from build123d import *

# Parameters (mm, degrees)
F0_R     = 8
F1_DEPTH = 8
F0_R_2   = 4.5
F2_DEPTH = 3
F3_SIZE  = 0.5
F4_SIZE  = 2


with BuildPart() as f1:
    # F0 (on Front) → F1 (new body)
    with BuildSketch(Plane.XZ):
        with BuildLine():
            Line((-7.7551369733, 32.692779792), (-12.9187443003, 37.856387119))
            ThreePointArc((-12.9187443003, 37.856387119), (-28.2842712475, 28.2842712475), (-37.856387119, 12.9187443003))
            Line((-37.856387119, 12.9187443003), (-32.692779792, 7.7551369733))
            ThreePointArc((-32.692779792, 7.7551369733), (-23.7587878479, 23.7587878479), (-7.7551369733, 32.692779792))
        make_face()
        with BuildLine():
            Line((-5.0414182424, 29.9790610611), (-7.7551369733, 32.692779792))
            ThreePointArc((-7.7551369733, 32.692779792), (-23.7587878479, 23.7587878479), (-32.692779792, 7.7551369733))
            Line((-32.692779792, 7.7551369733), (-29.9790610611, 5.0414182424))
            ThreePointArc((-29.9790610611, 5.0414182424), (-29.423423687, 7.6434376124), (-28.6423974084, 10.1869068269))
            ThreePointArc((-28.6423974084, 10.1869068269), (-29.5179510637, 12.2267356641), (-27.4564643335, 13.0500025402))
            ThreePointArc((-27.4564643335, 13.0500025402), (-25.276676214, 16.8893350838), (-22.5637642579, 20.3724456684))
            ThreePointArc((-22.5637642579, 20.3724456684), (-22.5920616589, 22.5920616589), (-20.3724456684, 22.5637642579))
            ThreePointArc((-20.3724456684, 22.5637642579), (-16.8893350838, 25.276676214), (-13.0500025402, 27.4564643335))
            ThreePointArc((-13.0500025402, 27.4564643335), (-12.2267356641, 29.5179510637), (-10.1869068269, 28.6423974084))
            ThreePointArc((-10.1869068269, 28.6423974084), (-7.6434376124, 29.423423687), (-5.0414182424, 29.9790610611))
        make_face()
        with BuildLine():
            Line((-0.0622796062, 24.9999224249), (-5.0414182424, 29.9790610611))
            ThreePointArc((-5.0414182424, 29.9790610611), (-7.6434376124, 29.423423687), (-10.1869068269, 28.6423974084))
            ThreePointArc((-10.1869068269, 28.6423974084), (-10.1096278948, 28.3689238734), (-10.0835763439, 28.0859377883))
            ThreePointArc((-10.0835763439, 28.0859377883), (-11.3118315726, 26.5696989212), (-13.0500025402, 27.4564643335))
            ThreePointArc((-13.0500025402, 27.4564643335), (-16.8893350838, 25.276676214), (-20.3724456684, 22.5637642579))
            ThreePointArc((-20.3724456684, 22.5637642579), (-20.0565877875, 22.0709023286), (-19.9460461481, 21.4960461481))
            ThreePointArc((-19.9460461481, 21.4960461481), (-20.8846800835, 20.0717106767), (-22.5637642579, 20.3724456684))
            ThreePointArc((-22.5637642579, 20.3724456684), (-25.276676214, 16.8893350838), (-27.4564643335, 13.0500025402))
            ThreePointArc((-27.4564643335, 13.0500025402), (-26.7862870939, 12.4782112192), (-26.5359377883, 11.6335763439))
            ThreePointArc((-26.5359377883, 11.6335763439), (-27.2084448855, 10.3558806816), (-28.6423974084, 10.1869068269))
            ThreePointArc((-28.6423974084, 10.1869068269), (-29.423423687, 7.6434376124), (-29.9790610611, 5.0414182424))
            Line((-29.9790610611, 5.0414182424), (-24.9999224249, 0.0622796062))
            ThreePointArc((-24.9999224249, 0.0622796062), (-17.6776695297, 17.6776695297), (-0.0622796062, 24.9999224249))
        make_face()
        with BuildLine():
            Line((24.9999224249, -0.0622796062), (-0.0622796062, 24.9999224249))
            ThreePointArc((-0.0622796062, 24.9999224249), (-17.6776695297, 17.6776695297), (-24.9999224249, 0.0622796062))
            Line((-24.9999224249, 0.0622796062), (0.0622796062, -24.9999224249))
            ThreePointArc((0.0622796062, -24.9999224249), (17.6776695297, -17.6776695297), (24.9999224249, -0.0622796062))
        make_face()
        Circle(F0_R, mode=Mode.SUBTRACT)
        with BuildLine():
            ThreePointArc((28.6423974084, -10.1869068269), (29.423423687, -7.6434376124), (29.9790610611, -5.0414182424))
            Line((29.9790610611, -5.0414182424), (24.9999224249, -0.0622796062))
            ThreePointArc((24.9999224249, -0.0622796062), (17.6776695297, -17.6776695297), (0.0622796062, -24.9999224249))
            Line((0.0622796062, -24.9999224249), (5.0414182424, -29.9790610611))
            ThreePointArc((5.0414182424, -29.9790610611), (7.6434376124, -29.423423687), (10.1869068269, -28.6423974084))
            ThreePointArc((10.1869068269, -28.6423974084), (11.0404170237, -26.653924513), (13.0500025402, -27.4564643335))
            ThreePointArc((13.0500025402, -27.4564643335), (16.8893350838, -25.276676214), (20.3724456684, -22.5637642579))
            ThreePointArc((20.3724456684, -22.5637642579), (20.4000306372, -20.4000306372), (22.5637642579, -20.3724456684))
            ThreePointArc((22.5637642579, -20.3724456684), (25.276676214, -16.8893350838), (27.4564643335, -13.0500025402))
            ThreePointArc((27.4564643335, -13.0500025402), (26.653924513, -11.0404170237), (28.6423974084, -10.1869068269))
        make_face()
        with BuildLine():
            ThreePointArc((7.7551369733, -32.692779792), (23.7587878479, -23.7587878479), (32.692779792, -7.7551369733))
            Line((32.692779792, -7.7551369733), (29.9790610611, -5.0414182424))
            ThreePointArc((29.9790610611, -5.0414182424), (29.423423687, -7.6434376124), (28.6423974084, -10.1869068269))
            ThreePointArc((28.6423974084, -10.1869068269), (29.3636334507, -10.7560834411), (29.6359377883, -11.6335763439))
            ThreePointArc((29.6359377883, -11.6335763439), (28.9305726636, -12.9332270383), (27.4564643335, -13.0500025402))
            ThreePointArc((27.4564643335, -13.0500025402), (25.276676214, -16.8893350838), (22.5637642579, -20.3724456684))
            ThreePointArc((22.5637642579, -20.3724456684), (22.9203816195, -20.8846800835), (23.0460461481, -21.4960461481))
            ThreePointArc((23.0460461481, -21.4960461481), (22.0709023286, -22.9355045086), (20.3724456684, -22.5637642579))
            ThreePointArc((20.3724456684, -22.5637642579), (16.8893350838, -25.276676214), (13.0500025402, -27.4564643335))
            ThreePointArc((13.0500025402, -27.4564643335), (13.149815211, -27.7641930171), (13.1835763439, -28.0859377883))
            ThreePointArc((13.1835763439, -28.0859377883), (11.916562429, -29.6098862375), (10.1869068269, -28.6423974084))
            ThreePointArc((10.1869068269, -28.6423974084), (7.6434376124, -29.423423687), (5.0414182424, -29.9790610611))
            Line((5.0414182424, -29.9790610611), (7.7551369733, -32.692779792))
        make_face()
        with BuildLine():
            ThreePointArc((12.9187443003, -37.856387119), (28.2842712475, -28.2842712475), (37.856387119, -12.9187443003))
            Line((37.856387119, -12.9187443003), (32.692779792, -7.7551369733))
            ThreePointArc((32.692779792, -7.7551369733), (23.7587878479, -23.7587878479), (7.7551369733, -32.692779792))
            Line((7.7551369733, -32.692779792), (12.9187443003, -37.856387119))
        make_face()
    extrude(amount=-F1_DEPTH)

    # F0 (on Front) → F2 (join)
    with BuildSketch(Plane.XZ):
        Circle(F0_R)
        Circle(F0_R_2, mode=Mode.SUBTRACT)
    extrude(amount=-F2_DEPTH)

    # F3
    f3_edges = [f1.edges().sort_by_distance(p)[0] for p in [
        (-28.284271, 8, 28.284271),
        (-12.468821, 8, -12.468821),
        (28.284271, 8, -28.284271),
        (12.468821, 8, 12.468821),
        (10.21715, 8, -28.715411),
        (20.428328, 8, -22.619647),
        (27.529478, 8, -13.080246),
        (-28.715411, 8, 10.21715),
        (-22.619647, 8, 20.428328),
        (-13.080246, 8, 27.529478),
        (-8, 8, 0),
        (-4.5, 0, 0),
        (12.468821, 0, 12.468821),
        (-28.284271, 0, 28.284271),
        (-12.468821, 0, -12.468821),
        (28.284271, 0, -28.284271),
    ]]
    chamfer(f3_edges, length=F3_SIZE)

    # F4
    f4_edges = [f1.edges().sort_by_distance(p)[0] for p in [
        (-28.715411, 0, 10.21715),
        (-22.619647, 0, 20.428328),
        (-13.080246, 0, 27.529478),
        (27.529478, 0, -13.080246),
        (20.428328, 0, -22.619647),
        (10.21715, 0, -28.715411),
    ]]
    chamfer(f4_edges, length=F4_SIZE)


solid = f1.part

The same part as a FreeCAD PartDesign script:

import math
import FreeCAD as App
import Part
import Sketcher

V = App.Vector
Q = App.Units.Quantity


def edges_at(feature, points):
    """Names of the edges that pass closest to the given points."""
    edges = feature.Shape.Edges
    near = lambda p: min(range(len(edges)), key=lambda i: edges[i].distToShape(Part.Vertex(*p))[0])
    return sorted({f"Edge{near(p) + 1}" for p in points})

doc = App.newDocument("Part")
params = doc.addObject("Spreadsheet::Sheet", "Params")
for row, (alias, value) in enumerate([
    ("sketch1_diameter", "16 mm"),
    ("sketch1_radius", "40 mm"),
    ("sketch1_radius2", "1.55 mm"),
    ("pad1_length", "8 mm"),
    ("sketch2_diameter", "16 mm"),
    ("sketch2_diameter2", "9 mm"),
    ("pad2_length", "3 mm"),
    ("chamfer_size", "0.5 mm"),
    ("chamfer2_size", "2 mm"),
], start=1):
    params.set(f"A{row}", alias)
    params.set(f"B{row}", "=" + value)
    params.setAlias(f"B{row}", alias)

body = doc.addObject("PartDesign::Body", "Body")

# Sketch on XZ plane
sketch1 = body.newObject("Sketcher::SketchObject", "Sketch")
sketch1.AttachmentSupport = (doc.getObject("XZ_Plane"), [""])
sketch1.MapMode = "FlatFace"
sketch1.addGeometry(Part.ArcOfCircle(Part.Circle(V(0, 0, 0), V(0, 0, 1), 40), math.radians(109), math.radians(161)), False)
sketch1.addGeometry(Part.LineSegment(V(-37.9, 12.9, 0), V(12.9, -37.9, 0)), False)
sketch1.addGeometry(Part.ArcOfCircle(Part.Circle(V(0, 0, 0), V(0, 0, 1), 40), math.radians(-71), math.radians(-19)), False)
sketch1.addGeometry(Part.LineSegment(V(37.9, -12.9, 0), V(-12.9, 37.9, 0)), False)
sketch1.addGeometry(Part.ArcOfCircle(Part.Circle(V(11.6, -28.1, 0), V(0, 0, 1), 1.6), math.radians(24), math.radians(201)), False)
sketch1.addGeometry(Part.ArcOfCircle(Part.Circle(V(11.6, -28.1, 0), V(0, 0, 1), 1.6), math.radians(0), math.radians(24)), False)
sketch1.addGeometry(Part.ArcOfCircle(Part.Circle(V(11.6, -28.1, 0), V(0, 0, 1), 1.6), math.radians(-159), math.radians(0)), False)
sketch1.addGeometry(Part.ArcOfCircle(Part.Circle(V(21.5, -21.5, 0), V(0, 0, 1), 1.6), math.radians(46), math.radians(224)), False)
sketch1.addGeometry(Part.ArcOfCircle(Part.Circle(V(21.5, -21.5, 0), V(0, 0, 1), 1.6), math.radians(0), math.radians(46)), False)
sketch1.addGeometry(Part.ArcOfCircle(Part.Circle(V(21.5, -21.5, 0), V(0, 0, 1), 1.6), math.radians(-136), math.radians(0)), False)
sketch1.addGeometry(Part.ArcOfCircle(Part.Circle(V(28.1, -11.6, 0), V(0, 0, 1), 1.6), math.radians(69), math.radians(246)), False)
sketch1.addGeometry(Part.ArcOfCircle(Part.Circle(V(28.1, -11.6, 0), V(0, 0, 1), 1.6), math.radians(0), math.radians(69)), False)
sketch1.addGeometry(Part.ArcOfCircle(Part.Circle(V(28.1, -11.6, 0), V(0, 0, 1), 1.6), math.radians(-114), math.radians(0)), False)
sketch1.addGeometry(Part.Circle(V(0, 0, 0), V(0, 0, 1), 8), False)
sketch1.addGeometry(Part.ArcOfCircle(Part.Circle(V(-28.1, 11.6, 0), V(0, 0, 1), 1.6), math.radians(66), math.radians(249)), False)
sketch1.addGeometry(Part.ArcOfCircle(Part.Circle(V(-28.1, 11.6, 0), V(0, 0, 1), 1.6), math.radians(0), math.radians(66)), False)
sketch1.addGeometry(Part.ArcOfCircle(Part.Circle(V(-28.1, 11.6, 0), V(0, 0, 1), 1.6), math.radians(-111), math.radians(0)), False)
sketch1.addGeometry(Part.ArcOfCircle(Part.Circle(V(-21.5, 21.5, 0), V(0, 0, 1), 1.6), math.radians(44), math.radians(226)), False)
sketch1.addGeometry(Part.ArcOfCircle(Part.Circle(V(-21.5, 21.5, 0), V(0, 0, 1), 1.5), math.radians(0), math.radians(44)), False)
sketch1.addGeometry(Part.ArcOfCircle(Part.Circle(V(-21.5, 21.5, 0), V(0, 0, 1), 1.6), math.radians(-134), math.radians(0)), False)
sketch1.addGeometry(Part.ArcOfCircle(Part.Circle(V(-11.6, 28.1, 0), V(0, 0, 1), 1.6), math.radians(21), math.radians(204)), False)
sketch1.addGeometry(Part.ArcOfCircle(Part.Circle(V(-11.6, 28.1, 0), V(0, 0, 1), 1.6), math.radians(0), math.radians(21)), False)
sketch1.addGeometry(Part.ArcOfCircle(Part.Circle(V(-11.6, 28.1, 0), V(0, 0, 1), 1.6), math.radians(-156), math.radians(0)), False)
sketch1.addConstraint(Sketcher.Constraint("Coincident", 0, 2, 1, 1))
sketch1.addConstraint(Sketcher.Constraint("Coincident", 1, 2, 2, 1))
sketch1.addConstraint(Sketcher.Constraint("Coincident", 2, 2, 3, 1))
sketch1.addConstraint(Sketcher.Constraint("Coincident", 3, 2, 0, 1))
sketch1.addConstraint(Sketcher.Constraint("Tangent", 4, 1, 5, 2))
sketch1.addConstraint(Sketcher.Constraint("Tangent", 5, 1, 6, 2))
sketch1.addConstraint(Sketcher.Constraint("Tangent", 6, 1, 4, 2))
sketch1.addConstraint(Sketcher.Constraint("Tangent", 7, 1, 8, 2))
sketch1.addConstraint(Sketcher.Constraint("Tangent", 8, 1, 9, 2))
sketch1.addConstraint(Sketcher.Constraint("Tangent", 9, 1, 7, 2))
sketch1.addConstraint(Sketcher.Constraint("Tangent", 10, 1, 11, 2))
sketch1.addConstraint(Sketcher.Constraint("Tangent", 11, 1, 12, 2))
sketch1.addConstraint(Sketcher.Constraint("Tangent", 12, 1, 10, 2))
sketch1.addConstraint(Sketcher.Constraint("Tangent", 14, 1, 15, 2))
sketch1.addConstraint(Sketcher.Constraint("Tangent", 15, 1, 16, 2))
sketch1.addConstraint(Sketcher.Constraint("Tangent", 16, 1, 14, 2))
sketch1.addConstraint(Sketcher.Constraint("Tangent", 17, 1, 18, 2))
sketch1.addConstraint(Sketcher.Constraint("Tangent", 18, 1, 19, 2))
sketch1.addConstraint(Sketcher.Constraint("Tangent", 19, 1, 17, 2))
sketch1.addConstraint(Sketcher.Constraint("Tangent", 20, 1, 21, 2))
sketch1.addConstraint(Sketcher.Constraint("Tangent", 21, 1, 22, 2))
sketch1.addConstraint(Sketcher.Constraint("Tangent", 22, 1, 20, 2))
sketch1.addConstraint(Sketcher.Constraint("Coincident", 0, 3, -1, 1))
sketch1.addConstraint(Sketcher.Constraint("Coincident", 2, 3, -1, 1))
sketch1.addConstraint(Sketcher.Constraint("Coincident", 13, 3, -1, 1))
sketch1.addConstraint(Sketcher.Constraint("Equal", 0, 2))
sketch1.addConstraint(Sketcher.Constraint("Equal", 6, 7))
sketch1.addConstraint(Sketcher.Constraint("Equal", 9, 10))
sketch1.addConstraint(Sketcher.Constraint("Equal", 12, 14))
sketch1.addConstraint(Sketcher.Constraint("Equal", 16, 17))
sketch1.addConstraint(Sketcher.Constraint("Equal", 19, 20))
sketch1.addConstraint(Sketcher.Constraint("Symmetric", 10, 3, 14, 3, -1, 1))
sketch1.addConstraint(Sketcher.Constraint("Symmetric", 7, 3, 17, 3, -1, 1))
sketch1.addConstraint(Sketcher.Constraint("Symmetric", 4, 3, 20, 3, -1, 1))
sketch1.addConstraint(Sketcher.Constraint("Parallel", 1, 3))
sketch1.addConstraint(Sketcher.Constraint("Horizontal", 6, 3, 5, 1))
sketch1.addConstraint(Sketcher.Constraint("Horizontal", 9, 3, 8, 1))
sketch1.addConstraint(Sketcher.Constraint("Horizontal", 12, 3, 11, 1))
sketch1.addConstraint(Sketcher.Constraint("Horizontal", 16, 3, 15, 1))
sketch1.addConstraint(Sketcher.Constraint("Horizontal", 19, 3, 18, 1))
sketch1.addConstraint(Sketcher.Constraint("Horizontal", 22, 3, 21, 1))
sketch1.addConstraint(Sketcher.Constraint("Equal", 1, 3))
sketch1.addConstraint(Sketcher.Constraint("Diameter", 13, Q("16 mm")))
sketch1.addConstraint(Sketcher.Constraint("Radius", 0, Q("40 mm")))
sketch1.addConstraint(Sketcher.Constraint("Angle", 1, Q("-45 deg")))
sketch1.addConstraint(Sketcher.Constraint("Radius", 4, Q("1.55 mm")))
sketch1.addConstraint(Sketcher.Constraint("DistanceY", 0, 2, 17, 3, Q("8.577302 mm")))
sketch1.addConstraint(Sketcher.Constraint("DistanceX", 1, 2, 7, 3, Q("8.577302 mm")))
sketch1.addConstraint(Sketcher.Constraint("DistanceY", 7, 3, 7, 1, Q("1.1236 mm")))
sketch1.addConstraint(Sketcher.Constraint("DistanceX", 9, 1, 7, 3, Q("1.1236 mm")))
sketch1.addConstraint(Sketcher.Constraint("DistanceX", 18, 3, 17, 1, Q("1.1236 mm")))
sketch1.addConstraint(Sketcher.Constraint("DistanceY", 19, 1, 17, 3, Q("1.1236 mm")))
sketch1.addConstraint(Sketcher.Constraint("Distance", 1, Q("71.806879 mm")))
sketch1.addConstraint(Sketcher.Constraint("DistanceX", 4, 3, 7, 3, Q("9.86247 mm")))
sketch1.addConstraint(Sketcher.Constraint("DistanceY", 4, 3, 7, 3, Q("6.589892 mm")))
sketch1.addConstraint(Sketcher.Constraint("DistanceX", 7, 3, 10, 3, Q("6.589892 mm")))
sketch1.addConstraint(Sketcher.Constraint("DistanceY", 7, 3, 10, 3, Q("9.86247 mm")))
sketch1.addConstraint(Sketcher.Constraint("DistanceY", 4, 1, 7, 3, Q("5.960418 mm")))
sketch1.addConstraint(Sketcher.Constraint("DistanceX", 6, 1, 5, 3, Q("1.44667 mm")))
sketch1.addConstraint(Sketcher.Constraint("DistanceX", 10, 3, 10, 1, Q("0.55646 mm")))
sketch1.addConstraint(Sketcher.Constraint("DistanceX", 14, 1, 17, 3, Q("5.960418 mm")))
sketch1.addConstraint(Sketcher.Constraint("DistanceX", 16, 1, 14, 3, Q("0.55646 mm")))
sketch1.addConstraint(Sketcher.Constraint("DistanceX", 20, 3, 20, 1, Q("1.44667 mm")))
sketch1.addConstraint(Sketcher.Constraint("DistanceX", -1, 1, 12, 1, Q("27.456464 mm")))
sketch1.addConstraint(Sketcher.Constraint("DistanceX", 22, 1, -1, 1, Q("13.050003 mm")))
sketch1.setExpression("Constraints[42]", "Params.sketch1_diameter")
sketch1.setExpression("Constraints[43]", "Params.sketch1_radius")
sketch1.setExpression("Constraints[45]", "Params.sketch1_radius2")
pad1 = body.newObject("PartDesign::Pad", "Pad")
pad1.Profile = sketch1
pad1.setExpression("Length", "Params.pad1_length")
pad1.Reversed = True

# Sketch on XZ plane
sketch2 = body.newObject("Sketcher::SketchObject", "Sketch001")
sketch2.AttachmentSupport = (doc.getObject("XZ_Plane"), [""])
sketch2.MapMode = "FlatFace"
sketch2.addGeometry(Part.Circle(V(0, 0, 0), V(0, 0, 1), 8), False)
sketch2.addGeometry(Part.Circle(V(0, 0, 0), V(0, 0, 1), 4.5), False)
sketch2.addConstraint(Sketcher.Constraint("Coincident", 0, 3, -1, 1))
sketch2.addConstraint(Sketcher.Constraint("Coincident", 1, 3, -1, 1))
sketch2.addConstraint(Sketcher.Constraint("Diameter", 0, Q("16 mm")))
sketch2.addConstraint(Sketcher.Constraint("Diameter", 1, Q("9 mm")))
sketch2.setExpression("Constraints[2]", "Params.sketch2_diameter")
sketch2.setExpression("Constraints[3]", "Params.sketch2_diameter2")
pad2 = body.newObject("PartDesign::Pad", "Pad001")
pad2.Profile = sketch2
pad2.setExpression("Length", "Params.pad2_length")
pad2.Reversed = True
doc.recompute()

chamfer = body.newObject("PartDesign::Chamfer", "Chamfer")
chamfer.Base = (pad2, edges_at(pad2, [
    (-28.284, 8, 28.284),
    (-12.469, 8, -12.469),
    (28.284, 8, -28.284),
    (12.469, 8, 12.469),
    (11.917, 8, -29.61),
    (22.071, 8, -22.936),
    (28.931, 8, -12.933),
    (-29.518, 8, 12.227),
    (-22.592, 8, 22.592),
    (-12.227, 8, 29.518),
    (-8, 8, 0),
    (-4.5, 0, 0),
    (12.469, 0, 12.469),
    (-28.284, 0, 28.284),
    (-12.469, 0, -12.469),
    (28.284, 0, -28.284),
]))
chamfer.setExpression("Size", "Params.chamfer_size")
doc.recompute()

chamfer2 = body.newObject("PartDesign::Chamfer", "Chamfer001")
chamfer2.Base = (chamfer, edges_at(chamfer, [
    (-29.518, 0, 12.227),
    (-22.592, 0, 22.592),
    (-12.227, 0, 29.518),
    (28.931, 0, -12.933),
    (22.071, 0, -22.936),
    (11.917, 0, -29.61),
]))
chamfer2.setExpression("Size", "Params.chamfer2_size")

doc.recompute()
